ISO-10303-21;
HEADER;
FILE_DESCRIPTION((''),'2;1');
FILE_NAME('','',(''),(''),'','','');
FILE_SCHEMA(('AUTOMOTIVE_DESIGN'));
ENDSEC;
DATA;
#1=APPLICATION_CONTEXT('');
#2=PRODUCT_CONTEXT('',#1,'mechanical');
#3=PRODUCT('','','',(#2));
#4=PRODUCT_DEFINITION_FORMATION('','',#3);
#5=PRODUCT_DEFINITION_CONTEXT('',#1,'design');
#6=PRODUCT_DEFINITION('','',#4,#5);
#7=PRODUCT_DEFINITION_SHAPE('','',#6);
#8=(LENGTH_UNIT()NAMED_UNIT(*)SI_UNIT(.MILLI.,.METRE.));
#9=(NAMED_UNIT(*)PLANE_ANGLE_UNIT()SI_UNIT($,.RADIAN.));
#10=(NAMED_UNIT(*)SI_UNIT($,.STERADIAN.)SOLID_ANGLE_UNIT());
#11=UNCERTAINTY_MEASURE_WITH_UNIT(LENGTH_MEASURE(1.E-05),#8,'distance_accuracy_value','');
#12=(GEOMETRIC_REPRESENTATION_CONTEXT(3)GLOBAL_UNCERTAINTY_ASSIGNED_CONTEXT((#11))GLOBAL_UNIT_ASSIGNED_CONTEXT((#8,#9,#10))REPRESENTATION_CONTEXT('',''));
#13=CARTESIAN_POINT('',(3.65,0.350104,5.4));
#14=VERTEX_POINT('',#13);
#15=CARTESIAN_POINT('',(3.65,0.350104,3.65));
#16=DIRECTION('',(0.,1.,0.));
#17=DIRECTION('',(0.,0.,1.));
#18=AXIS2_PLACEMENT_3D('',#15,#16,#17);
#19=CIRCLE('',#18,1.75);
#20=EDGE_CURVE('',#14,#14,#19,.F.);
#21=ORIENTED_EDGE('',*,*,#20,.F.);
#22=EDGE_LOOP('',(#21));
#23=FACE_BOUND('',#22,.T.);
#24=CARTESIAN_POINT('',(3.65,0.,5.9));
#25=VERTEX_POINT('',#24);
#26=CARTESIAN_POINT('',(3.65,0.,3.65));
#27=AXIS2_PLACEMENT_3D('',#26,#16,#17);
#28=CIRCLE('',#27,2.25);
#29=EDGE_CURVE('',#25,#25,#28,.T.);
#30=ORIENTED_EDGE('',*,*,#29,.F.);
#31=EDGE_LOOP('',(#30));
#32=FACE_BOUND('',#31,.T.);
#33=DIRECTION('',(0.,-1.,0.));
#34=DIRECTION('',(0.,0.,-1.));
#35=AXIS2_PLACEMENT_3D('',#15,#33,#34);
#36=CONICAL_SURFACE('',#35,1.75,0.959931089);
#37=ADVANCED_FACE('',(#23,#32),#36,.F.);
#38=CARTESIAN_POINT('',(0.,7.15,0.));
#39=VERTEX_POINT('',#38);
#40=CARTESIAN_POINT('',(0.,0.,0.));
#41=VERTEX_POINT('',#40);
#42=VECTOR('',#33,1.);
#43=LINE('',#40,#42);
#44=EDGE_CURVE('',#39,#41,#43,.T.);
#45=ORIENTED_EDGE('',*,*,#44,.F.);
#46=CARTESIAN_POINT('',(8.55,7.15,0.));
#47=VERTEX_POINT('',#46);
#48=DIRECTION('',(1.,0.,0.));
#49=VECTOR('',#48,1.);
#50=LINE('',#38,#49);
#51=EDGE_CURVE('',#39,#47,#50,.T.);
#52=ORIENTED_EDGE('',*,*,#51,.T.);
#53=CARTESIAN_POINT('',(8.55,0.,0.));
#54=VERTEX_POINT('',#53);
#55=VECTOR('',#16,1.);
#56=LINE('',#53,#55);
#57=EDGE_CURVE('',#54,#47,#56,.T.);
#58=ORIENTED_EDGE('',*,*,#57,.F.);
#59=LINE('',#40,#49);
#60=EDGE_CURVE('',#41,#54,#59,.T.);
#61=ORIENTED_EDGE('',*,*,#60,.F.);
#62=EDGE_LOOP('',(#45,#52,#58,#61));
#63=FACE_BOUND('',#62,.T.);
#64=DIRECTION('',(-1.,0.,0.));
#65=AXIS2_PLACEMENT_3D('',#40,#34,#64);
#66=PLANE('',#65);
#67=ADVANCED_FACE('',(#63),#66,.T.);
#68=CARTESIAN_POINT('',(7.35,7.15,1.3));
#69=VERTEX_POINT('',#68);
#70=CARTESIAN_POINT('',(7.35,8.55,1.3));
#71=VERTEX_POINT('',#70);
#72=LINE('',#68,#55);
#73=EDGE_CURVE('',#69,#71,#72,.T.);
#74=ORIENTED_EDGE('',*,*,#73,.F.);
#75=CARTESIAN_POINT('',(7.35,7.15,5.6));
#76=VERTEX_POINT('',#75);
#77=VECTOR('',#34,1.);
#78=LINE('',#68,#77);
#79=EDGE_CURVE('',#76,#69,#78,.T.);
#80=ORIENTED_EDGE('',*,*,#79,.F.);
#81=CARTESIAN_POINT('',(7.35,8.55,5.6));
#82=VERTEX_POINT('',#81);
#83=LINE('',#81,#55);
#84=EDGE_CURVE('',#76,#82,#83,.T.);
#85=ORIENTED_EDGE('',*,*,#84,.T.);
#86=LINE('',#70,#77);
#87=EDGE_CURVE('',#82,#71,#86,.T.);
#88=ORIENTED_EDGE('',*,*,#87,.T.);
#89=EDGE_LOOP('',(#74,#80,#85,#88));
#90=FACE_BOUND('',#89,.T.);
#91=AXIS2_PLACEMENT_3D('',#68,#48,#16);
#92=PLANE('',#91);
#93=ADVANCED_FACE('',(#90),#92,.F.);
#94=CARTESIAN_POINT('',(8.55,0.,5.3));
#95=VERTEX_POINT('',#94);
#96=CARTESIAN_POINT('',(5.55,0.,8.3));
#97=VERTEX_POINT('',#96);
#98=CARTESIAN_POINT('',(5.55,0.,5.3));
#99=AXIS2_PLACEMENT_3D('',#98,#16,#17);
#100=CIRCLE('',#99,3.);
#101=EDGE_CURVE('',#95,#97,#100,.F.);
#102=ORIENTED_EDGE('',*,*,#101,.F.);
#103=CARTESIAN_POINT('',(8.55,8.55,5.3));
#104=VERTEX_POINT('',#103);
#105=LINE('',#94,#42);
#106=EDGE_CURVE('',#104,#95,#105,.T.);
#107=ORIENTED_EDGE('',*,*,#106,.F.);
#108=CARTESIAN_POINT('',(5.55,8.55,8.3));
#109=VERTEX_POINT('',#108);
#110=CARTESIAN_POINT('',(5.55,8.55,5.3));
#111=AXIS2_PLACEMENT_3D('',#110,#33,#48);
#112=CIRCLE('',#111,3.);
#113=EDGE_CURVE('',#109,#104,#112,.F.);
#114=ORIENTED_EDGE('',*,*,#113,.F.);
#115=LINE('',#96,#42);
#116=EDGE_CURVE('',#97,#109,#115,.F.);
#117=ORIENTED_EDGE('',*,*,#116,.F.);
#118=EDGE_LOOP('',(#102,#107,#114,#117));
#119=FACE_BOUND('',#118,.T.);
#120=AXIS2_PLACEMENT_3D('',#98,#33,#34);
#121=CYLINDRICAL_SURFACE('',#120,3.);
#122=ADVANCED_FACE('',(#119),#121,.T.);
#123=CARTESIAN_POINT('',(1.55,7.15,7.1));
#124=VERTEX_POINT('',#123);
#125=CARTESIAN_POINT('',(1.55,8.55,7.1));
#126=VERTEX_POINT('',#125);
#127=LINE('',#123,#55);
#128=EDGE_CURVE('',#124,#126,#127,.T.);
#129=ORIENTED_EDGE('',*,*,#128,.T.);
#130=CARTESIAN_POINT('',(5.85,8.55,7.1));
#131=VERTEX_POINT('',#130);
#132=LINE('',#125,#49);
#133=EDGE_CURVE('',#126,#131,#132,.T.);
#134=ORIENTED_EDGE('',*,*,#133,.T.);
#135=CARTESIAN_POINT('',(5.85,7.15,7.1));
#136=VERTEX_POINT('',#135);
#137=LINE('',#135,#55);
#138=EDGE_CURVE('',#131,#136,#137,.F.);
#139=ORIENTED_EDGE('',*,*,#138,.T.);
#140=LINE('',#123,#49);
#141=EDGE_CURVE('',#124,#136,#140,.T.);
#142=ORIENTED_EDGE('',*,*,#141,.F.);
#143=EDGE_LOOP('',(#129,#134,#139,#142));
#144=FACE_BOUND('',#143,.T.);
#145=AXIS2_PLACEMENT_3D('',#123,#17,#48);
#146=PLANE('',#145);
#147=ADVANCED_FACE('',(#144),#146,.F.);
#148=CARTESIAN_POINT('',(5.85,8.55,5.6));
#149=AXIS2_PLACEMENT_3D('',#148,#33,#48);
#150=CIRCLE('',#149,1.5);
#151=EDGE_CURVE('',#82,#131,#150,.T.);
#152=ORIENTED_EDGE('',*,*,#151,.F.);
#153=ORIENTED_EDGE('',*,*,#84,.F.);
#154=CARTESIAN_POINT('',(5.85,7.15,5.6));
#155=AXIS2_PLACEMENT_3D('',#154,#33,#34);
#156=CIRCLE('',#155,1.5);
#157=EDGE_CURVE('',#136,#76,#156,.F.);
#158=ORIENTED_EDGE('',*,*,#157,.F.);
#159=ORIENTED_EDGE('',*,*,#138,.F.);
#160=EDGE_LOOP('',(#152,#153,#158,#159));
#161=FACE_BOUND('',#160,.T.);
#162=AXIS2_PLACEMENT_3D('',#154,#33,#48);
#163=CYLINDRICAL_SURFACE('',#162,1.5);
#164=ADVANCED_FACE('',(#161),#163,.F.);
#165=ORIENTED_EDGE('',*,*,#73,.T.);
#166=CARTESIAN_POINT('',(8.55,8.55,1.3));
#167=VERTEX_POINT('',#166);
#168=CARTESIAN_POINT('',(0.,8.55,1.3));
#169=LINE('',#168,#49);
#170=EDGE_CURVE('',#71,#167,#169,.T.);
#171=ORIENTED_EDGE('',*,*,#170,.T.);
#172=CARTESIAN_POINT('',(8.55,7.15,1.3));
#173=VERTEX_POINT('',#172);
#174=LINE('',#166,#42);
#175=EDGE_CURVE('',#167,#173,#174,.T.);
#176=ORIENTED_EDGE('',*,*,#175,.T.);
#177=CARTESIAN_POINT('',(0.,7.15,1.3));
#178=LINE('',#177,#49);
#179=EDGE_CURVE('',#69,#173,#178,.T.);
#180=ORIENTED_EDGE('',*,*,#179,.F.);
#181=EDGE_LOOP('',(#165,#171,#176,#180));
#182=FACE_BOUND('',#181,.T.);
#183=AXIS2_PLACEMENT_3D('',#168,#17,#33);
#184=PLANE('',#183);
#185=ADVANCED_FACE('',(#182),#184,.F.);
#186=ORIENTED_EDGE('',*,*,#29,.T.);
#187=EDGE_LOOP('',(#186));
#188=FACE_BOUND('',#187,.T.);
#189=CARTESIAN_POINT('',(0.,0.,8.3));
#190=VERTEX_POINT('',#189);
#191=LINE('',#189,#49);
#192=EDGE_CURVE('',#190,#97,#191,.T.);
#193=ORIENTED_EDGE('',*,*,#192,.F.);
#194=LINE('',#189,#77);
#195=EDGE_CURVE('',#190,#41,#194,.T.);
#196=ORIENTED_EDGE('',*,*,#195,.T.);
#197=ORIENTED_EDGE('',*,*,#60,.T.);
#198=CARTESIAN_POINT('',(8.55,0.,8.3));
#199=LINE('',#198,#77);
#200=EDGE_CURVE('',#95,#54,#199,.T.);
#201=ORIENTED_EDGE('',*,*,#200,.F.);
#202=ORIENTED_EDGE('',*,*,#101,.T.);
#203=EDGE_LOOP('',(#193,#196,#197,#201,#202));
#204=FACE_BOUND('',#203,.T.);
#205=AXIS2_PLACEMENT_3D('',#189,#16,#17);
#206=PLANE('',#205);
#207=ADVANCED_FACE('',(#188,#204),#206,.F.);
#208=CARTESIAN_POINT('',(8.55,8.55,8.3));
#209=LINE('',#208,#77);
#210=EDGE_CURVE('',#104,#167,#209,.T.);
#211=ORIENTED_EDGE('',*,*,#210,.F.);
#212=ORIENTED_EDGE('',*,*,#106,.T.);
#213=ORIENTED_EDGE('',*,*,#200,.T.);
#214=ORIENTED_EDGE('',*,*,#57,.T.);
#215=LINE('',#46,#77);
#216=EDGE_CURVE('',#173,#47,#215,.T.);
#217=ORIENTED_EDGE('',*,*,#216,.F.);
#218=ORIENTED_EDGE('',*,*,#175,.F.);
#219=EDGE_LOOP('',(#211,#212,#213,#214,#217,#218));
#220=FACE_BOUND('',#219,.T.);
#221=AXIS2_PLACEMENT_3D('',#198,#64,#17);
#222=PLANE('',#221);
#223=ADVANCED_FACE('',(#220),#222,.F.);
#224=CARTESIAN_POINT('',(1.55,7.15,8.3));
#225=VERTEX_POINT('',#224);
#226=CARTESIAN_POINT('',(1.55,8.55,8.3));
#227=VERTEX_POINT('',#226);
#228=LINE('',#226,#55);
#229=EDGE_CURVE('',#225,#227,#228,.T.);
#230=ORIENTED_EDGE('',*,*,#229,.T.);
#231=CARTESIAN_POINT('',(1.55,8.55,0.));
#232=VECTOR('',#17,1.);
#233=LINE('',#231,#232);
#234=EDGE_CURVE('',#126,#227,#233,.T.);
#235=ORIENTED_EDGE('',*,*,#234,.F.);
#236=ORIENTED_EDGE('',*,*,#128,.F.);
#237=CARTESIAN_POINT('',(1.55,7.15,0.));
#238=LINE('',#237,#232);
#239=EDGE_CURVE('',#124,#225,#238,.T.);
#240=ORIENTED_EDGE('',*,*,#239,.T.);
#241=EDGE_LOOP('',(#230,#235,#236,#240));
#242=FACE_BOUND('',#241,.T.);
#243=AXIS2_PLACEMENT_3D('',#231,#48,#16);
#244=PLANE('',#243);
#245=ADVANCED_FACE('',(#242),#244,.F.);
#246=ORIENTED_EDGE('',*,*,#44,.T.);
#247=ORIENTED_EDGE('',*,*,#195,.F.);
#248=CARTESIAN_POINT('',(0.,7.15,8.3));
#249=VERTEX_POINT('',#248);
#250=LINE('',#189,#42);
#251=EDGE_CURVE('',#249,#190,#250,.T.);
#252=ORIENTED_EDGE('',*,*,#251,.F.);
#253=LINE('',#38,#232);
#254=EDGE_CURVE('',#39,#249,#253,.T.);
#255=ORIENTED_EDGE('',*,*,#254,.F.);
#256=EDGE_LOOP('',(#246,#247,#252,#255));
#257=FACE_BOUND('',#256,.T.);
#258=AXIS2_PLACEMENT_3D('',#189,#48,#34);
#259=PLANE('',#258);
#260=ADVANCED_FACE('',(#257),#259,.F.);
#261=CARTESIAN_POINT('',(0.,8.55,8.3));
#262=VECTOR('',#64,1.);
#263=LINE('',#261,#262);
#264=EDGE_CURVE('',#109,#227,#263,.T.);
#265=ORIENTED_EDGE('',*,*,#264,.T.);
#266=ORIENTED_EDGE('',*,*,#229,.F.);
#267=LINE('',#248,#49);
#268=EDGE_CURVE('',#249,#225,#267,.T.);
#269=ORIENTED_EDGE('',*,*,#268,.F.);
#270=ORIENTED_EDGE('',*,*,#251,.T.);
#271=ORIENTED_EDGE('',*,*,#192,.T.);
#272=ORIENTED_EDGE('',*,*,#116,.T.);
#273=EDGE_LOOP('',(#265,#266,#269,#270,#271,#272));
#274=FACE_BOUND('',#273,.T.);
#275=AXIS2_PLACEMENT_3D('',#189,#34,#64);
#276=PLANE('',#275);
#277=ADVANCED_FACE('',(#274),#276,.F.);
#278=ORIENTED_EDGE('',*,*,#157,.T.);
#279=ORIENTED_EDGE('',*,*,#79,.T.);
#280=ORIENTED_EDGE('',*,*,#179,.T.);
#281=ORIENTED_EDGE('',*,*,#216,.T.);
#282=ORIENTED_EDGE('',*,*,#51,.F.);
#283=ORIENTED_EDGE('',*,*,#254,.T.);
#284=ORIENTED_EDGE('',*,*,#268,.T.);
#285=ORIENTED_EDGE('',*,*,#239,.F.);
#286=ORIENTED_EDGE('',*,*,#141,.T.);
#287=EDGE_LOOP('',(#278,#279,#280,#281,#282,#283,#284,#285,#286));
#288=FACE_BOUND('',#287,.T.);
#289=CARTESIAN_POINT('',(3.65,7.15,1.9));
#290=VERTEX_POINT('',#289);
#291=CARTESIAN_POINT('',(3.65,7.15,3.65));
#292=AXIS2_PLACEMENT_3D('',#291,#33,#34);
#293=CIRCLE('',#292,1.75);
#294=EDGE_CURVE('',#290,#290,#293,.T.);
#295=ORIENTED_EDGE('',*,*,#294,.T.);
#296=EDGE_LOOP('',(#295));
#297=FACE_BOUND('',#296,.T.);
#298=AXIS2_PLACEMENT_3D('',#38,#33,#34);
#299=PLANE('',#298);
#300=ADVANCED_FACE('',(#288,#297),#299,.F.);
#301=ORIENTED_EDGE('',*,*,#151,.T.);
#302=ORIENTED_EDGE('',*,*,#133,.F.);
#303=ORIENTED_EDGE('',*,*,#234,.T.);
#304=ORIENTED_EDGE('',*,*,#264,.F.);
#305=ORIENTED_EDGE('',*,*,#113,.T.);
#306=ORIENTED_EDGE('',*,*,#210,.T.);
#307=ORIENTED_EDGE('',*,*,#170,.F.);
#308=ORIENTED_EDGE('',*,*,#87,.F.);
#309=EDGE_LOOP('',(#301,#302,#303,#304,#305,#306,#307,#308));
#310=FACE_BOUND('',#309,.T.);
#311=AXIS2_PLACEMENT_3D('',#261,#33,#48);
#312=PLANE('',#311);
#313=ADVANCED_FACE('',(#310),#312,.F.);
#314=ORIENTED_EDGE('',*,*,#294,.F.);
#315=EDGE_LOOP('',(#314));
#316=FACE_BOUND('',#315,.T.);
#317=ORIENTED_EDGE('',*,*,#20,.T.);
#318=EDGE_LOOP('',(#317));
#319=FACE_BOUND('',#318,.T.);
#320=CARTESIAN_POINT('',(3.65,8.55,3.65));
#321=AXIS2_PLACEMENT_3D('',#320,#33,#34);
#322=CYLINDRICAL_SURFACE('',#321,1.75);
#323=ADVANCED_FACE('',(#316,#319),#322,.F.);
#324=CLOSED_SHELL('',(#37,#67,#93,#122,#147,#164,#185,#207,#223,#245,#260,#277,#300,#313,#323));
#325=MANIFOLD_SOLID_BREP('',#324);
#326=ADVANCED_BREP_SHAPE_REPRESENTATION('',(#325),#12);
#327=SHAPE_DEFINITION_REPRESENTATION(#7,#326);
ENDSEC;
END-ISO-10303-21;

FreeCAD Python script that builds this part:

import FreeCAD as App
import Part
import Sketcher


def edges_at(feature, points):
    """Names of the edges that pass closest to the given points."""
    edges = feature.Shape.Edges
    near = lambda p: min(range(len(edges)), key=lambda i: edges[i].distToShape(Part.Vertex(*p))[0])
    return sorted({f"Edge{near(p) + 1}" for p in points})

doc = App.newDocument("Part")
body = doc.addObject("PartDesign::Body", "Body")

# Sketch on XY plane
sketch1 = body.newObject("Sketcher::SketchObject", "Sketch")
sketch1.AttachmentSupport = (doc.getObject("XY_Plane"), [""])
sketch1.MapMode = "FlatFace"
sketch1.addGeometry([
    Part.LineSegment(App.Vector(0, 9, 0), App.Vector(0, 0, 0)),
    Part.LineSegment(App.Vector(0, 0, 0), App.Vector(9, 0, 0)),
    Part.LineSegment(App.Vector(9, 0, 0), App.Vector(9, 9, 0)),
    Part.LineSegment(App.Vector(9, 9, 0), App.Vector(0, 9, 0)),
], False)
sketch1.addConstraint([
    Sketcher.Constraint("Coincident", 0, 2, 1, 1),
    Sketcher.Constraint("Coincident", 1, 2, 2, 1),
    Sketcher.Constraint("Coincident", 2, 2, 3, 1),
    Sketcher.Constraint("Coincident", 3, 2, 0, 1),
    Sketcher.Constraint("Vertical", 0),
    Sketcher.Constraint("Horizontal", 1),
    Sketcher.Constraint("Vertical", 2),
    Sketcher.Constraint("Horizontal", 3),
    Sketcher.Constraint("Coincident", 0, 2, -1, 1),
    Sketcher.Constraint("Equal", 3, 0),
    Sketcher.Constraint("DistanceX", 1, 1, 1, 2, 8.55),
])
pad1 = body.newObject("PartDesign::Pad", "Pad")
pad1.Profile = sketch1
pad1.Length = 8.3

# Sketch on XY plane
sketch2 = body.newObject("Sketcher::SketchObject", "Sketch001")
sketch2.AttachmentSupport = (doc.getObject("XY_Plane"), [""])
sketch2.MapMode = "FlatFace"
sketch2.AttachmentOffset = App.Placement(App.Vector(0, 0, 8.3), App.Rotation())
sketch2.addGeometry([
    Part.LineSegment(App.Vector(0, 8.6, 0), App.Vector(0, 7.2, 0)),
    Part.LineSegment(App.Vector(0, 7.2, 0), App.Vector(1.6, 7.2, 0)),
    Part.LineSegment(App.Vector(1.6, 7.2, 0), App.Vector(1.6, 8.6, 0)),
    Part.LineSegment(App.Vector(1.6, 8.6, 0), App.Vector(0, 8.6, 0)),
], False)
sketch2.addConstraint([
    Sketcher.Constraint("Coincident", 0, 2, 1, 1),
    Sketcher.Constraint("Coincident", 1, 2, 2, 1),
    Sketcher.Constraint("Coincident", 2, 2, 3, 1),
    Sketcher.Constraint("Coincident", 3, 2, 0, 1),
    Sketcher.Constraint("Vertical", 0),
    Sketcher.Constraint("Horizontal", 1),
    Sketcher.Constraint("Vertical", 2),
    Sketcher.Constraint("Horizontal", 3),
    Sketcher.Constraint("PointOnObject", 0, 2, -2),
    Sketcher.Constraint("DistanceY", 0, 2, 0, 1, 1.4),
    Sketcher.Constraint("DistanceX", 1, 1, 1, 2, 1.55),
    Sketcher.Constraint("DistanceY", -1, 1, 0, 2, 7.15),
])
pocket1 = body.newObject("PartDesign::Pocket", "Pocket")
pocket1.Profile = sketch2
pocket1.Type = "ThroughAll"

# Sketch on YZ plane
sketch3 = body.newObject("Sketcher::SketchObject", "Sketch002")
sketch3.AttachmentSupport = (doc.getObject("YZ_Plane"), [""])
sketch3.MapMode = "FlatFace"
sketch3.AttachmentOffset = App.Placement(App.Vector(0, 0, 8.55), App.Rotation())
sketch3.addGeometry([
    Part.LineSegment(App.Vector(8.6, 1.3, 0), App.Vector(7.2, 1.3, 0)),
    Part.LineSegment(App.Vector(7.2, 1.3, 0), App.Vector(7.2, 0, 0)),
    Part.LineSegment(App.Vector(7.2, 0, 0), App.Vector(8.6, 0, 0)),
    Part.LineSegment(App.Vector(8.6, 0, 0), App.Vector(8.6, 1.3, 0)),
], False)
sketch3.addConstraint([
    Sketcher.Constraint("Coincident", 0, 2, 1, 1),
    Sketcher.Constraint("Coincident", 1, 2, 2, 1),
    Sketcher.Constraint("Coincident", 2, 2, 3, 1),
    Sketcher.Constraint("Coincident", 3, 2, 0, 1),
    Sketcher.Constraint("Horizontal", 0),
    Sketcher.Constraint("Vertical", 1),
    Sketcher.Constraint("Horizontal", 2),
    Sketcher.Constraint("Vertical", 3),
    Sketcher.Constraint("PointOnObject", 1, 2, -1),
    Sketcher.Constraint("DistanceX", 0, 2, 0, 1, 1.4),
    Sketcher.Constraint("DistanceY", 1, 2, 1, 1, 1.3),
    Sketcher.Constraint("DistanceX", -1, 1, 0, 2, 7.15),
])
pocket2 = body.newObject("PartDesign::Pocket", "Pocket001")
pocket2.Profile = sketch3
pocket2.Type = "ThroughAll"

# Sketch on XZ plane
sketch4 = body.newObject("Sketcher::SketchObject", "Sketch003")
sketch4.AttachmentSupport = (doc.getObject("XZ_Plane"), [""])
sketch4.MapMode = "FlatFace"
sketch4.AttachmentOffset = App.Placement(App.Vector(0, 0, -8.55), App.Rotation())
sketch4.addGeometry([
    Part.LineSegment(App.Vector(2, 1, 0), App.Vector(2, 7, 0)),
    Part.LineSegment(App.Vector(2, 7, 0), App.Vector(7, 7, 0)),
    Part.LineSegment(App.Vector(7, 7, 0), App.Vector(7, 1, 0)),
    Part.LineSegment(App.Vector(7, 1, 0), App.Vector(2, 1, 0)),
], False)
sketch4.addConstraint([
    Sketcher.Constraint("Coincident", 0, 2, 1, 1),
    Sketcher.Constraint("Coincident", 1, 2, 2, 1),
    Sketcher.Constraint("Coincident", 2, 2, 3, 1),
    Sketcher.Constraint("Coincident", 3, 2, 0, 1),
    Sketcher.Constraint("Vertical", 0),
    Sketcher.Constraint("Horizontal", 1),
    Sketcher.Constraint("Vertical", 2),
    Sketcher.Constraint("Horizontal", 3),
    Sketcher.Constraint("Equal", 3, 0),
    Sketcher.Constraint("DistanceX", 1, 1, 1, 2, 5.8),
    Sketcher.Constraint("DistanceY", -1, 1, 0, 2, 7.1),
    Sketcher.Constraint("DistanceX", -1, 1, 0, 2, 1.55),
])
pocket3 = body.newObject("PartDesign::Pocket", "Pocket002")
pocket3.Profile = sketch4
pocket3.Length = 1.4
pocket3.Reversed = True
doc.recompute()

fillet = body.newObject("PartDesign::Fillet", "Fillet")
fillet.Base = (pocket3, edges_at(pocket3, [(7.35, 7.85, 7.1)]))
fillet.Radius = 1.5
doc.recompute()

fillet2 = body.newObject("PartDesign::Fillet", "Fillet001")
fillet2.Base = (fillet, edges_at(fillet, [(8.55, 4.275, 8.3)]))
fillet2.Radius = 3

# Sketch on XZ plane
sketch5 = body.newObject("Sketcher::SketchObject", "Sketch004")
sketch5.AttachmentSupport = (doc.getObject("XZ_Plane"), [""])
sketch5.MapMode = "FlatFace"
sketch5.addGeometry(Part.Circle(App.Vector(3.6, 3.6, 0), App.Vector(0, 0, 1), 1.8), False)
sketch5.addConstraint([
    Sketcher.Constraint("Diameter", 0, 3.5),
    Sketcher.Constraint("DistanceX", -1, 1, 0, 3, 3.65),
    Sketcher.Constraint("DistanceY", -1, 1, 0, 3, 3.65),
])
pocket4 = body.newObject("PartDesign::Pocket", "Pocket003")
pocket4.Profile = sketch5
pocket4.Type = "ThroughAll"
doc.recompute()

chamfer = body.newObject("PartDesign::Chamfer", "Chamfer")
chamfer.Base = (pocket4, edges_at(pocket4, [(1.9, 0, 3.65)]))
chamfer.ChamferType = "Two distances"
chamfer.Size = 0.5
chamfer.Size2 = 0.350104

doc.recompute()
